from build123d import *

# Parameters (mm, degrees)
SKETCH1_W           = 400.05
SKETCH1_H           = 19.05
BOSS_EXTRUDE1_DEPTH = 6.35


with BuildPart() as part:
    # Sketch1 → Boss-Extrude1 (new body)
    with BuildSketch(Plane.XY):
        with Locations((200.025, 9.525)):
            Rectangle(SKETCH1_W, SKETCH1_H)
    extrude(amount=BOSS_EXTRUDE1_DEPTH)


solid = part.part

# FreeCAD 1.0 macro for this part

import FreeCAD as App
import Part
import Sketcher

V = App.Vector
Q = App.Units.Quantity

doc = App.newDocument("Part")
body = doc.addObject("PartDesign::Body", "Body")

sketch1 = doc.addObject("Sketcher::SketchObject", "Sketch")
body.addObject(sketch1)
sketch1.AttachmentSupport = (doc.XY_Plane, [""])
sketch1.MapMode = "FlatFace"
sketch1.addGeometry([
    Part.LineSegment(V(0, 19.05, 0), V(0, 0, 0)),
    Part.LineSegment(V(0, 0, 0), V(400.05, 0, 0)),
    Part.LineSegment(V(400.05, 0, 0), V(400.05, 19.05, 0)),
    Part.LineSegment(V(400.05, 19.05, 0), V(0, 19.05, 0)),
], False)
sketch1.addConstraint([
    Sketcher.Constraint("Coincident", 0, 2, 1, 1),
    Sketcher.Constraint("Coincident", 1, 2, 2, 1),
    Sketcher.Constraint("Coincident", 2, 2, 3, 1),
    Sketcher.Constraint("Coincident", 3, 2, 0, 1),
    Sketcher.Constraint("Vertical", 0),
    Sketcher.Constraint("Horizontal", 1),
    Sketcher.Constraint("Vertical", 2),
    Sketcher.Constraint("Horizontal", 3),
    Sketcher.Constraint("Coincident", 0, 2, -1, 1),
    Sketcher.Constraint("DistanceX", 1, 1, 1, 2, Q("15.75 in")),
    Sketcher.Constraint("DistanceY", 0, 2, 0, 1, Q("0.75 in")),
])
pad1 = doc.addObject("PartDesign::Pad", "Pad")
body.addObject(pad1)
pad1.Profile = sketch1
pad1.Length = Q("0.25 in")

doc.recompute()
